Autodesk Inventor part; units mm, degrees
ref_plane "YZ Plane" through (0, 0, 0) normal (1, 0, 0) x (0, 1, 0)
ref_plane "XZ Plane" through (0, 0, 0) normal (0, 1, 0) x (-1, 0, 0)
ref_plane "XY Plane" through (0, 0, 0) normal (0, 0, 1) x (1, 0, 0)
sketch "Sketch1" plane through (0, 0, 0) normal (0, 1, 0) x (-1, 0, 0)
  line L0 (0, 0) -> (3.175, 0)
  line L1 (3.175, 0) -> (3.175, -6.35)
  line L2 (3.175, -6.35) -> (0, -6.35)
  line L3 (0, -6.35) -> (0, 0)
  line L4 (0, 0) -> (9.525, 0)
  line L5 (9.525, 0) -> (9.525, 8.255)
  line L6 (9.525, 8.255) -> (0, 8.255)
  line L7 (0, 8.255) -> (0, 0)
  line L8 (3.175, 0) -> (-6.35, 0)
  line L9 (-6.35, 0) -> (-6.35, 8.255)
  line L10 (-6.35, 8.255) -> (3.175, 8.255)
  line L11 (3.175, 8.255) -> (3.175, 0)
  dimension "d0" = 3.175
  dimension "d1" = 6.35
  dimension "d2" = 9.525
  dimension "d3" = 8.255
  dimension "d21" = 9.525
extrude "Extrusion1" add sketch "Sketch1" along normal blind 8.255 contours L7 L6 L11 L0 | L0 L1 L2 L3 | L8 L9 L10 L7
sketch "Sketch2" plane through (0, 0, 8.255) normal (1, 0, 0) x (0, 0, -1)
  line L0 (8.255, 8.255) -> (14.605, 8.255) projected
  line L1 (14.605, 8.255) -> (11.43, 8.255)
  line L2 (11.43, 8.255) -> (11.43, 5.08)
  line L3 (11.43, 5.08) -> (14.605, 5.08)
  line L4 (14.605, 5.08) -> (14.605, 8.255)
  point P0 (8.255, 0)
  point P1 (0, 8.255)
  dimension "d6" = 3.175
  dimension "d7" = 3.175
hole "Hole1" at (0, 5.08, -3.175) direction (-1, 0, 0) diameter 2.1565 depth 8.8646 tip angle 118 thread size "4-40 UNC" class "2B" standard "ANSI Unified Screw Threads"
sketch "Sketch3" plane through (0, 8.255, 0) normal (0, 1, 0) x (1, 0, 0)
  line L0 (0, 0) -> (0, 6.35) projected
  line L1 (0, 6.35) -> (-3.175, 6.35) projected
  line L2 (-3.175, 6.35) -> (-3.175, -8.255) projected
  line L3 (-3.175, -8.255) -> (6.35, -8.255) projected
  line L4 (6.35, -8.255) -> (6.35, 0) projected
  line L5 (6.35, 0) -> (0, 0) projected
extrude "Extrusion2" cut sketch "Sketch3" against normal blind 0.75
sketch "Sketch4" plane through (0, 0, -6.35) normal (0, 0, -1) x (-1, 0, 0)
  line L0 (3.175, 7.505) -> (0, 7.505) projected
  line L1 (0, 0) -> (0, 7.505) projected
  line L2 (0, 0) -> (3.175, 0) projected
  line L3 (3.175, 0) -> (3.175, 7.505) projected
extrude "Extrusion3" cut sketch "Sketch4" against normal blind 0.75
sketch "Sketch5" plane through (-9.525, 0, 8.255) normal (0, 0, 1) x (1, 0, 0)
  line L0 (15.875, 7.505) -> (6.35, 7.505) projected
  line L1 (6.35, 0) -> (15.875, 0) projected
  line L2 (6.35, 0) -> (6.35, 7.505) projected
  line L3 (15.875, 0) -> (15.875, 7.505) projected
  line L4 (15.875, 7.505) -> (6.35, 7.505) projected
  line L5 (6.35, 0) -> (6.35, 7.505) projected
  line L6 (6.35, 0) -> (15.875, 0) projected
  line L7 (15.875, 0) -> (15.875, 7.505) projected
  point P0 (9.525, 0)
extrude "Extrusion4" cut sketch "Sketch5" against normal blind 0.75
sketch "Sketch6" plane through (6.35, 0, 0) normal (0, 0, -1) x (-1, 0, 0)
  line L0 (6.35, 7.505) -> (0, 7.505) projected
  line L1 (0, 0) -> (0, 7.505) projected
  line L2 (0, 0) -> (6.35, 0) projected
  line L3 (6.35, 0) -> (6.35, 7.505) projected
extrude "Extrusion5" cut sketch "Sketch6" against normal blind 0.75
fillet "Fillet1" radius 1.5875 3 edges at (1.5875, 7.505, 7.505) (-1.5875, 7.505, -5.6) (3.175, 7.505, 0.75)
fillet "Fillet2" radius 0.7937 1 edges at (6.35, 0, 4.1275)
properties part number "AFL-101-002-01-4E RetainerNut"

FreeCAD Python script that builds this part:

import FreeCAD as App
import Part
import Sketcher
Q = App.Units.Quantity


def edges_at(feature, points):
    """Names of the edges that pass closest to the given points."""
    edges = feature.Shape.Edges
    near = lambda p: min(range(len(edges)), key=lambda i: edges[i].distToShape(Part.Vertex(*p))[0])
    return sorted({f"Edge{near(p) + 1}" for p in points})

doc = App.newDocument("Part")
body = doc.addObject("PartDesign::Body", "Body")

sketch1 = body.newObject("Sketcher::SketchObject", "Sketch")
sketch1.AttachmentSupport = (doc.getObject("XZ_Plane"), [""])
sketch1.MapMode = "FlatFace"
sketch1.addGeometry([
    Part.LineSegment(App.Vector(-3.2, 8.3, 0), App.Vector(6.3, 8.3, 0)),
    Part.LineSegment(App.Vector(6.3, 8.3, 0), App.Vector(6.3, 0, 0)),
    Part.LineSegment(App.Vector(6.3, 0, 0), App.Vector(0, 0, 0)),
    Part.LineSegment(App.Vector(0, 0, 0), App.Vector(0, -6.3, 0)),
    Part.LineSegment(App.Vector(0, -6.3, 0), App.Vector(-3.2, -6.3, 0)),
    Part.LineSegment(App.Vector(-3.2, -6.3, 0), App.Vector(-3.2, 8.3, 0)),
], False)
sketch1.addConstraint([
    Sketcher.Constraint("Coincident", 0, 2, 1, 1),
    Sketcher.Constraint("Coincident", 1, 2, 2, 1),
    Sketcher.Constraint("Coincident", 2, 2, 3, 1),
    Sketcher.Constraint("Coincident", 3, 2, 4, 1),
    Sketcher.Constraint("Coincident", 4, 2, 5, 1),
    Sketcher.Constraint("Coincident", 5, 2, 0, 1),
    Sketcher.Constraint("Horizontal", 0),
    Sketcher.Constraint("Vertical", 1),
    Sketcher.Constraint("Horizontal", 2),
    Sketcher.Constraint("Vertical", 3),
    Sketcher.Constraint("Horizontal", 4),
    Sketcher.Constraint("Vertical", 5),
    Sketcher.Constraint("Coincident", 2, 2, -1, 1),
    Sketcher.Constraint("Equal", 2, 3),
    Sketcher.Constraint("DistanceX", 2, 2, 2, 1, Q("0.25 in")),
    Sketcher.Constraint("DistanceX", 0, 1, 0, 2, Q("0.375 in")),
    Sketcher.Constraint("DistanceY", 1, 2, 1, 1, Q("0.325 in")),
])
pad1 = body.newObject("PartDesign::Pad", "Pad")
pad1.Profile = sketch1
pad1.Length = Q("0.325 in")
pad1.Reversed = True

sketch2 = body.newObject("Sketcher::SketchObject", "Sketch001")
sketch2.AttachmentSupport = (doc.getObject("YZ_Plane"), [""])
sketch2.MapMode = "FlatFace"
sketch2.addGeometry(Part.Circle(App.Vector(5.1, -3.2, 0), App.Vector(0, 0, 1), 1.1), False)
sketch2.addConstraint([
    Sketcher.Constraint("Diameter", 0, Q("0.0849 in")),
    Sketcher.Constraint("DistanceX", -1, 1, 0, 3, Q("0.2 in")),
    Sketcher.Constraint("DistanceY", 0, 3, -1, 1, Q("0.125 in")),
])
doc.recompute()
hole = body.newObject("PartDesign::Hole", "Hole")
hole.Profile = sketch2
hole.ThreadType = "None"
hole.Diameter = Q("0.0849016 in")
hole.DepthType = "Dimension"
hole.Depth = Q("0.349 in")
hole.DrillPoint = "Angled"
hole.DrillPointAngle = 118

sketch3 = body.newObject("Sketcher::SketchObject", "Sketch002")
sketch3.AttachmentSupport = (doc.getObject("XZ_Plane"), [""])
sketch3.MapMode = "FlatFace"
sketch3.AttachmentOffset = App.Placement(App.Vector(0, 0, -0.325 * 25.4), App.Rotation())
sketch3.addGeometry([
    Part.LineSegment(App.Vector(6.3, 0, 0), App.Vector(0, 0, 0)),
    Part.LineSegment(App.Vector(0, 0, 0), App.Vector(0, -6.3, 0)),
    Part.LineSegment(App.Vector(0, -6.3, 0), App.Vector(-3.2, -6.3, 0)),
    Part.LineSegment(App.Vector(-3.2, -6.3, 0), App.Vector(-3.2, 8.3, 0)),
    Part.LineSegment(App.Vector(-3.2, 8.3, 0), App.Vector(6.3, 8.3, 0)),
    Part.LineSegment(App.Vector(6.3, 8.3, 0), App.Vector(6.3, 0, 0)),
], False)
sketch3.addConstraint([
    Sketcher.Constraint("Coincident", 0, 2, 1, 1),
    Sketcher.Constraint("Coincident", 1, 2, 2, 1),
    Sketcher.Constraint("Coincident", 2, 2, 3, 1),
    Sketcher.Constraint("Coincident", 3, 2, 4, 1),
    Sketcher.Constraint("Coincident", 4, 2, 5, 1),
    Sketcher.Constraint("Coincident", 5, 2, 0, 1),
    Sketcher.Constraint("Horizontal", 0),
    Sketcher.Constraint("Vertical", 1),
    Sketcher.Constraint("Horizontal", 2),
    Sketcher.Constraint("Vertical", 3),
    Sketcher.Constraint("Horizontal", 4),
    Sketcher.Constraint("Vertical", 5),
    Sketcher.Constraint("Coincident", 0, 2, -1, 1),
    Sketcher.Constraint("Equal", 0, 1),
    Sketcher.Constraint("DistanceX", 0, 2, 0, 1, Q("0.25 in")),
    Sketcher.Constraint("DistanceX", 2, 2, 2, 1, Q("0.125 in")),
    Sketcher.Constraint("DistanceY", 3, 1, 3, 2, Q("0.575 in")),
])
pocket1 = body.newObject("PartDesign::Pocket", "Pocket")
pocket1.Profile = sketch3
pocket1.Length = 0.75
pocket1.Reversed = True

sketch4 = body.newObject("Sketcher::SketchObject", "Sketch003")
sketch4.AttachmentSupport = (doc.getObject("XY_Plane"), [""])
sketch4.MapMode = "FlatFace"
sketch4.AttachmentOffset = App.Placement(App.Vector(0, 0, -0.25 * 25.4), App.Rotation())
sketch4.addGeometry([
    Part.LineSegment(App.Vector(-3.2, 0, 0), App.Vector(-3.2, 7.5, 0)),
    Part.LineSegment(App.Vector(-3.2, 7.5, 0), App.Vector(0, 7.5, 0)),
    Part.LineSegment(App.Vector(0, 7.5, 0), App.Vector(0, 0, 0)),
    Part.LineSegment(App.Vector(0, 0, 0), App.Vector(-3.2, 0, 0)),
], False)
sketch4.addConstraint([
    Sketcher.Constraint("Coincident", 0, 2, 1, 1),
    Sketcher.Constraint("Coincident", 1, 2, 2, 1),
    Sketcher.Constraint("Coincident", 2, 2, 3, 1),
    Sketcher.Constraint("Coincident", 3, 2, 0, 1),
    Sketcher.Constraint("Vertical", 0),
    Sketcher.Constraint("Horizontal", 1),
    Sketcher.Constraint("Vertical", 2),
    Sketcher.Constraint("Horizontal", 3),
    Sketcher.Constraint("Coincident", 2, 2, -1, 1),
    Sketcher.Constraint("DistanceX", 1, 1, 1, 2, Q("0.125 in")),
    Sketcher.Constraint("DistanceY", 0, 1, 0, 2, 7.505),
])
pocket2 = body.newObject("PartDesign::Pocket", "Pocket001")
pocket2.Profile = sketch4
pocket2.Length = 0.75
pocket2.Reversed = True

sketch5 = body.newObject("Sketcher::SketchObject", "Sketch004")
sketch5.AttachmentSupport = (doc.getObject("XY_Plane"), [""])
sketch5.MapMode = "FlatFace"
sketch5.AttachmentOffset = App.Placement(App.Vector(0, 0, 0.325 * 25.4), App.Rotation())
sketch5.addGeometry([
    Part.LineSegment(App.Vector(6, 0, 0), App.Vector(6, 8, 0)),
    Part.LineSegment(App.Vector(6, 8, 0), App.Vector(-3, 8, 0)),
    Part.LineSegment(App.Vector(-3, 8, 0), App.Vector(-3, 0, 0)),
    Part.LineSegment(App.Vector(-3, 0, 0), App.Vector(6, 0, 0)),
], False)
sketch5.addConstraint([
    Sketcher.Constraint("Coincident", 0, 2, 1, 1),
    Sketcher.Constraint("Coincident", 1, 2, 2, 1),
    Sketcher.Constraint("Coincident", 2, 2, 3, 1),
    Sketcher.Constraint("Coincident", 3, 2, 0, 1),
    Sketcher.Constraint("Vertical", 0),
    Sketcher.Constraint("Horizontal", 1),
    Sketcher.Constraint("Vertical", 2),
    Sketcher.Constraint("Horizontal", 3),
    Sketcher.Constraint("PointOnObject", 2, 2, -1),
    Sketcher.Constraint("DistanceX", 1, 2, 1, 1, Q("0.375 in")),
    Sketcher.Constraint("DistanceX", -1, 1, 0, 2, Q("0.25 in")),
    Sketcher.Constraint("DistanceY", 0, 1, 0, 2, 7.505),
])
pocket3 = body.newObject("PartDesign::Pocket", "Pocket002")
pocket3.Profile = sketch5
pocket3.Length = 0.75

sketch6 = body.newObject("Sketcher::SketchObject", "Sketch005")
sketch6.AttachmentSupport = (doc.getObject("XY_Plane"), [""])
sketch6.MapMode = "FlatFace"
sketch6.addGeometry([
    Part.LineSegment(App.Vector(0, 0, 0), App.Vector(0, 8, 0)),
    Part.LineSegment(App.Vector(0, 8, 0), App.Vector(6, 8, 0)),
    Part.LineSegment(App.Vector(6, 8, 0), App.Vector(6, 0, 0)),
    Part.LineSegment(App.Vector(6, 0, 0), App.Vector(0, 0, 0)),
], False)
sketch6.addConstraint([
    Sketcher.Constraint("Coincident", 0, 2, 1, 1),
    Sketcher.Constraint("Coincident", 1, 2, 2, 1),
    Sketcher.Constraint("Coincident", 2, 2, 3, 1),
    Sketcher.Constraint("Coincident", 3, 2, 0, 1),
    Sketcher.Constraint("Vertical", 0),
    Sketcher.Constraint("Horizontal", 1),
    Sketcher.Constraint("Vertical", 2),
    Sketcher.Constraint("Horizontal", 3),
    Sketcher.Constraint("Coincident", 3, 2, -1, 1),
    Sketcher.Constraint("DistanceX", 1, 1, 1, 2, Q("0.25 in")),
    Sketcher.Constraint("DistanceY", 0, 1, 0, 2, 7.505),
])
pocket4 = body.newObject("PartDesign::Pocket", "Pocket003")
pocket4.Profile = sketch6
pocket4.Length = 0.75
pocket4.Reversed = True
doc.recompute()

fillet = body.newObject("PartDesign::Fillet", "Fillet")
fillet.Base = (pocket4, edges_at(pocket4, [(1.587, 7.505, 7.505), (-1.587, 7.505, -5.6), (3.175, 7.505, 0.75)]))
fillet.Radius = Q("0.0625 in")
doc.recompute()

fillet2 = body.newObject("PartDesign::Fillet", "Fillet001")
fillet2.Base = (fillet, edges_at(fillet, [(6.35, 0, 4.128)]))
fillet2.Radius = Q("0.031248 in")

doc.recompute()
